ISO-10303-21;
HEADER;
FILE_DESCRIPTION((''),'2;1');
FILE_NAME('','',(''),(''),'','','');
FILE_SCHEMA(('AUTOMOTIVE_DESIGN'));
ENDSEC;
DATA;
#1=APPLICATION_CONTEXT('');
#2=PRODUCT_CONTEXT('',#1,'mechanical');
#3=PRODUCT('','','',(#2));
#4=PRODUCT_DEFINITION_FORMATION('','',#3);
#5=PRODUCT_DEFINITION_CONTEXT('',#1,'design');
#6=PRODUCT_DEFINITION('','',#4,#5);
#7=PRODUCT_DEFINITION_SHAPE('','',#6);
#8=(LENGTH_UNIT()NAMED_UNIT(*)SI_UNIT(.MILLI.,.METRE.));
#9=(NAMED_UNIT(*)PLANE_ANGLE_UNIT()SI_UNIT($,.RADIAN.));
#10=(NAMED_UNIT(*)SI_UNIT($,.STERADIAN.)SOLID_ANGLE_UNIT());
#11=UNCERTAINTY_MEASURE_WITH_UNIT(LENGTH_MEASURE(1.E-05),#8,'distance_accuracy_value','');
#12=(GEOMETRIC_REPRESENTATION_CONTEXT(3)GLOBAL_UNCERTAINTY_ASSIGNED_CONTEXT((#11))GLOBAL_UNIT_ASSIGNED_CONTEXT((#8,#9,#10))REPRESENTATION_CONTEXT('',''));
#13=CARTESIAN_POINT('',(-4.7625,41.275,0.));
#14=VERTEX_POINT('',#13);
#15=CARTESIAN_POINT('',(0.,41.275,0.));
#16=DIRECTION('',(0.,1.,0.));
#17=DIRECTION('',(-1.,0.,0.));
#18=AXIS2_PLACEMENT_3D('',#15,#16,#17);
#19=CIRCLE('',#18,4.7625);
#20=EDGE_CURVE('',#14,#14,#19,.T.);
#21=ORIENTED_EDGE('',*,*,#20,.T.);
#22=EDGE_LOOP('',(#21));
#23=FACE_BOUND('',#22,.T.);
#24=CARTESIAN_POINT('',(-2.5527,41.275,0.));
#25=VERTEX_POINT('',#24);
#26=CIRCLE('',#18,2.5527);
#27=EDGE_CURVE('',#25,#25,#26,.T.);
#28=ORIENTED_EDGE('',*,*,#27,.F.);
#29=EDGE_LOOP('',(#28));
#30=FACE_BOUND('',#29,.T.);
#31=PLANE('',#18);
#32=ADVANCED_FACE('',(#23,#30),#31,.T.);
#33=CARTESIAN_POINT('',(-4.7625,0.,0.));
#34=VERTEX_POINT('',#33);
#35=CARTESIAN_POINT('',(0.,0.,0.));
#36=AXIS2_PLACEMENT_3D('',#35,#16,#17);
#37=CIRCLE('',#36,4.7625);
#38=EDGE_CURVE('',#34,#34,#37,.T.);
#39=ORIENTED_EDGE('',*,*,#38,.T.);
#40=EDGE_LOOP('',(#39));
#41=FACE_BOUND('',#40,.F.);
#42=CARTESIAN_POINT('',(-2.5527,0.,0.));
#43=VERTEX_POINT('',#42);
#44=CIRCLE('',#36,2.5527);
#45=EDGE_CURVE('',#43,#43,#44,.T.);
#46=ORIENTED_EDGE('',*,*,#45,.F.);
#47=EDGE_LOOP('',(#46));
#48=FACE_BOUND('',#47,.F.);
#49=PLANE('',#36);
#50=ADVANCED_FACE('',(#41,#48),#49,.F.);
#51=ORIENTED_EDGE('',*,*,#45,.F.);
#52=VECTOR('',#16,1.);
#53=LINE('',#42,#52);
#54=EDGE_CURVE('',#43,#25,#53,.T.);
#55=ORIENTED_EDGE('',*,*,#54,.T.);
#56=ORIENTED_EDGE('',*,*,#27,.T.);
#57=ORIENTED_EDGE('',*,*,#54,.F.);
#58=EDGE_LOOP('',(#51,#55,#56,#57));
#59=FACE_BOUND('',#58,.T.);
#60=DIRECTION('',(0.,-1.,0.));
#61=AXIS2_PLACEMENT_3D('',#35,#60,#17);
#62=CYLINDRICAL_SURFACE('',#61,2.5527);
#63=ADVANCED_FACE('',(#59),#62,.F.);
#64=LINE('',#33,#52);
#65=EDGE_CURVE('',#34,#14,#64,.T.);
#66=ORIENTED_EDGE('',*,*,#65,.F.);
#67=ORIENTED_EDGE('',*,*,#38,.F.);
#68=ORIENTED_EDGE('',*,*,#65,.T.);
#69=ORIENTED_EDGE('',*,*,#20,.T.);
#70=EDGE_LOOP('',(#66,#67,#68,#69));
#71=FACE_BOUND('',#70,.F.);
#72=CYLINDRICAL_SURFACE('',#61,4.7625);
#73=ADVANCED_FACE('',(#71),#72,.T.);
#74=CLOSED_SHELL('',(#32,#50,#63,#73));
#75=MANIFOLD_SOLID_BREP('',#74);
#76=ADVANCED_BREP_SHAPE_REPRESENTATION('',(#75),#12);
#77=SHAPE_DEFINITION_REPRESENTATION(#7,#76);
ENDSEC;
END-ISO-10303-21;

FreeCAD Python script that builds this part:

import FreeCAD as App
import Part
import Sketcher
from FreeCAD import Vector
Q = App.Units.Quantity

doc = App.newDocument("Part")
body = doc.addObject("PartDesign::Body", "Body")

sketch1 = body.newObject("Sketcher::SketchObject", "Sketch")
sketch1.AttachmentSupport = (doc.getObject("XZ_Plane"), [""])
sketch1.MapMode = "FlatFace"
sketch1.addGeometry(Part.Circle(Vector(0, 0, 0), Vector(0, 0, 1), 4.8), False)
sketch1.addGeometry(Part.Circle(Vector(0, 0, 0), Vector(0, 0, 1), 2.6), False)
sketch1.addConstraint(Sketcher.Constraint("Coincident", 0, 3, -1, 1))
sketch1.addConstraint(Sketcher.Constraint("Coincident", 1, 3, -1, 1))
sketch1.addConstraint(Sketcher.Constraint("Diameter", 0, Q("0.375 in")))
sketch1.addConstraint(Sketcher.Constraint("Diameter", 1, Q("0.201 in")))
pad1 = body.newObject("PartDesign::Pad", "Pad")
pad1.Profile = sketch1
pad1.Length = Q("1.625 in")
pad1.Reversed = True

doc.recompute()
